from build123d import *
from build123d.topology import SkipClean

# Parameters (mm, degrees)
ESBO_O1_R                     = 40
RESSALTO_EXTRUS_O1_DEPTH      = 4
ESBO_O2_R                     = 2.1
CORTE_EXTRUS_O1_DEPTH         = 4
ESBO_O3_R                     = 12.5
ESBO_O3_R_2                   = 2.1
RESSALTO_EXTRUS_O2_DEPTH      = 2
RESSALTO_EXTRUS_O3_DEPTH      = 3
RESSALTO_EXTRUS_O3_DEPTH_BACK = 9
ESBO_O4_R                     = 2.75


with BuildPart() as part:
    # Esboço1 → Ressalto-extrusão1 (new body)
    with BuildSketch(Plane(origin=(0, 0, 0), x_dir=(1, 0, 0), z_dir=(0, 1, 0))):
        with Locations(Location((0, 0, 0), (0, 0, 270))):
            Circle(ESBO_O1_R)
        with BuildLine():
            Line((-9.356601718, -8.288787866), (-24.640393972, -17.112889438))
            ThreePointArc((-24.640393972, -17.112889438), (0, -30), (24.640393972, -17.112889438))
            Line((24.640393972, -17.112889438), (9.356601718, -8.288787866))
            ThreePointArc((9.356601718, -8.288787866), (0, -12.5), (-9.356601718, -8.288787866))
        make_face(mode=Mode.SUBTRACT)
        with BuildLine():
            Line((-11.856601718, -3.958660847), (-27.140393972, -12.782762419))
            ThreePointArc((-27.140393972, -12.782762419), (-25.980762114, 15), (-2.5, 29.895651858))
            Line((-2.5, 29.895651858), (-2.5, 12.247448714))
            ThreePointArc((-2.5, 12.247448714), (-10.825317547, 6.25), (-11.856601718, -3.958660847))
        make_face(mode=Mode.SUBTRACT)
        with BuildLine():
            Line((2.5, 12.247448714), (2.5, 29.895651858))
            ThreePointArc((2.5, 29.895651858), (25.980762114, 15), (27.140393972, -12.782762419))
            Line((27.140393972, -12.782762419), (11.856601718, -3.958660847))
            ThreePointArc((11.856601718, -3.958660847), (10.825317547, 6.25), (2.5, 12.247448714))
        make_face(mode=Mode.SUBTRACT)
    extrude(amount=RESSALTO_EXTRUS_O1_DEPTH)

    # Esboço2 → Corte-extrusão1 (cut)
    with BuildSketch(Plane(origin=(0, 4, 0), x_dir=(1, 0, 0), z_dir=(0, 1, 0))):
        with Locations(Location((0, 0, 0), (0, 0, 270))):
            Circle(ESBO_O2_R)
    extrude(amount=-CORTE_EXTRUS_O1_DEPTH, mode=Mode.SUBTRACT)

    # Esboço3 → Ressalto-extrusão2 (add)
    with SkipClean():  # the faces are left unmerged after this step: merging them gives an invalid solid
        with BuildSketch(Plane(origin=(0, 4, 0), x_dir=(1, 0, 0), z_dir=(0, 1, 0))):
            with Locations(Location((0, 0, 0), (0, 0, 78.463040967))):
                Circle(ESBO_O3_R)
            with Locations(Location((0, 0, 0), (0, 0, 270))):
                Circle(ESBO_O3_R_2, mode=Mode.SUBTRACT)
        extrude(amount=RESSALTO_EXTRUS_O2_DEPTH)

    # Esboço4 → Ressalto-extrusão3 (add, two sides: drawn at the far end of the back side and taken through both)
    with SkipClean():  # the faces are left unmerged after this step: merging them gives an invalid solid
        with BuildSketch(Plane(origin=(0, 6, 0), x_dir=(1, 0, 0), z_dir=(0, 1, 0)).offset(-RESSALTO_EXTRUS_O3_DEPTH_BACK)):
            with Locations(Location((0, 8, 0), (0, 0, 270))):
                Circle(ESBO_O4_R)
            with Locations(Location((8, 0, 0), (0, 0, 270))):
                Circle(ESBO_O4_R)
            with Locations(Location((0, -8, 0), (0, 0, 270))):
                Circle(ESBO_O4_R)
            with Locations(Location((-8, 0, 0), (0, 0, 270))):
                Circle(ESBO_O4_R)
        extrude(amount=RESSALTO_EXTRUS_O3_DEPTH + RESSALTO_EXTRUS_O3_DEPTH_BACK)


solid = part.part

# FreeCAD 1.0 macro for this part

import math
import FreeCAD as App
import Part
import Sketcher

V = App.Vector
Q = App.Units.Quantity

doc = App.newDocument("Part")
params = doc.addObject("Spreadsheet::Sheet", "Params")
for row, (alias, value) in enumerate([
    ("sketch1_diameter", "80 mm"),
    ("sketch1_radius", "30 mm"),
    ("sketch1_radius2", "12.5 mm"),
    ("pad1_length", "4 mm"),
    ("sketch2_diameter", "4.2 mm"),
    ("pocket1_length", "4 mm"),
    ("sketch3_diameter", "25 mm"),
    ("sketch3_diameter2", "4.2 mm"),
    ("pad2_length", "2 mm"),
    ("sketch4_diameter", "5.5 mm"),
    ("pad3_length", "3 mm"),
    ("pad3_length2", "9 mm"),
], start=1):
    params.set(f"A{row}", alias)
    params.set(f"B{row}", "=" + value)
    params.setAlias(f"B{row}", alias)

body = doc.addObject("PartDesign::Body", "Body")

# Sketch on XZ plane
sketch1 = body.newObject("Sketcher::SketchObject", "Sketch")
sketch1.AttachmentSupport = (doc.getObject("XZ_Plane"), [""])
sketch1.MapMode = "FlatFace"
sketch1.addGeometry([
    Part.Circle(V(0, 0, 0), V(0, 0, 1), 40),  # 0
    Part.ArcOfCircle(Part.Circle(V(0, 0, 0), V(0, 0, 1), 13), math.radians(162), math.radians(258)),  # 1
    Part.LineSegment(V(-12, 4, 0), V(-27, 13, 0)),  # 2
    Part.ArcOfCircle(Part.Circle(V(0, 0, 0), V(0, 0, 1), 30), math.radians(155), math.radians(265)),  # 3
    Part.LineSegment(V(-2, -30, 0), V(-2, -12, 0)),  # 4
    Part.ArcOfCircle(Part.Circle(V(0, 0, 0), V(0, 0, 1), 13), math.radians(-78), math.radians(18)),  # 5
    Part.LineSegment(V(2, -12, 0), V(2, -30, 0)),  # 6
    Part.ArcOfCircle(Part.Circle(V(0, 0, 0), V(0, 0, 1), 30), math.radians(-85), math.radians(25)),  # 7
    Part.LineSegment(V(27, 13, 0), V(12, 4, 0)),  # 8
    Part.LineSegment(V(-25, 17, 0), V(-9, 8, 0)),  # 9
    Part.ArcOfCircle(Part.Circle(V(0, 0, 0), V(0, 0, 1), 12), math.radians(42), math.radians(138)),  # 10
    Part.LineSegment(V(9, 8, 0), V(25, 17, 0)),  # 11
    Part.ArcOfCircle(Part.Circle(V(0, 0, 0), V(0, 0, 1), 30), math.radians(35), math.radians(145)),  # 12
], False)
sketch1.addConstraint([
    Sketcher.Constraint("Coincident", 1, 1, 2, 1),
    Sketcher.Constraint("Coincident", 2, 2, 3, 1),
    Sketcher.Constraint("Coincident", 3, 2, 4, 1),
    Sketcher.Constraint("Coincident", 4, 2, 1, 2),
    Sketcher.Constraint("Coincident", 5, 1, 6, 1),
    Sketcher.Constraint("Coincident", 6, 2, 7, 1),
    Sketcher.Constraint("Coincident", 7, 2, 8, 1),
    Sketcher.Constraint("Coincident", 8, 2, 5, 2),
    Sketcher.Constraint("Coincident", 9, 2, 10, 2),
    Sketcher.Constraint("Coincident", 10, 1, 11, 1),
    Sketcher.Constraint("Coincident", 11, 2, 12, 1),
    Sketcher.Constraint("Coincident", 12, 2, 9, 1),
    Sketcher.Constraint("Vertical", 4),
    Sketcher.Constraint("Vertical", 6),
    Sketcher.Constraint("Coincident", 0, 3, -1, 1),
    Sketcher.Constraint("Coincident", 1, 3, -1, 1),
    Sketcher.Constraint("Coincident", 3, 3, -1, 1),
    Sketcher.Constraint("Coincident", 5, 3, -1, 1),
    Sketcher.Constraint("Coincident", 7, 3, -1, 1),
    Sketcher.Constraint("Coincident", 10, 3, -1, 1),
    Sketcher.Constraint("Coincident", 12, 3, -1, 1),
    Sketcher.Constraint("Equal", 1, 5),
    Sketcher.Constraint("Equal", 3, 7),
    Sketcher.Constraint("Equal", 5, 10),
    Sketcher.Constraint("Equal", 7, 12),
    Sketcher.Constraint("Parallel", 2, 9),
    Sketcher.Constraint("Parallel", 8, 11),
    Sketcher.Constraint("Horizontal", 4, 2, 5, 1),
    Sketcher.Constraint("Horizontal", 2, 2, 7, 2),
    Sketcher.Constraint("Horizontal", 1, 1, 8, 2),
    Sketcher.Constraint("Horizontal", 9, 2, 10, 1),
    Sketcher.Constraint("Equal", 8, 9),
    Sketcher.Constraint("Diameter", 0, Q("80 mm")),
    Sketcher.Constraint("Radius", 3, Q("30 mm")),
    Sketcher.Constraint("Radius", 1, Q("12.5 mm")),
    Sketcher.Constraint("Angle", 2, Q("150 deg")),
    Sketcher.Constraint("DistanceX", 4, 2, 5, 1, Q("5 mm")),
    Sketcher.Constraint("DistanceX", 1, 1, 9, 2, Q("2.5 mm")),
])
sketch1.setExpression("Constraints[32]", "Params.sketch1_diameter")
sketch1.setExpression("Constraints[33]", "Params.sketch1_radius")
sketch1.setExpression("Constraints[34]", "Params.sketch1_radius2")
pad1 = body.newObject("PartDesign::Pad", "Pad")
pad1.Profile = sketch1
pad1.setExpression("Length", "Params.pad1_length")
pad1.Reversed = True

# Sketch on XZ plane
sketch2 = body.newObject("Sketcher::SketchObject", "Sketch001")
sketch2.AttachmentSupport = (doc.getObject("XZ_Plane"), [""])
sketch2.MapMode = "FlatFace"
sketch2.AttachmentOffset = App.Placement(V(0, 0, -4), App.Rotation())
sketch2.addGeometry(Part.Circle(V(0, 0, 0), V(0, 0, 1), 2.1), False)
sketch2.addConstraint([
    Sketcher.Constraint("Coincident", 0, 3, -1, 1),
    Sketcher.Constraint("Diameter", 0, Q("4.2 mm")),
])
sketch2.setExpression("Constraints[1]", "Params.sketch2_diameter")
pocket1 = body.newObject("PartDesign::Pocket", "Pocket")
pocket1.Profile = sketch2
pocket1.setExpression("Length", "Params.pocket1_length")
pocket1.Reversed = True

# Sketch on XZ plane
sketch3 = body.newObject("Sketcher::SketchObject", "Sketch002")
sketch3.AttachmentSupport = (doc.getObject("XZ_Plane"), [""])
sketch3.MapMode = "FlatFace"
sketch3.AttachmentOffset = App.Placement(V(0, 0, -4), App.Rotation())
sketch3.addGeometry([
    Part.Circle(V(0, 0, 0), V(0, 0, 1), 12.5),
    Part.Circle(V(0, 0, 0), V(0, 0, 1), 2.1),
], False)
sketch3.addConstraint([
    Sketcher.Constraint("Coincident", 0, 3, -1, 1),
    Sketcher.Constraint("Coincident", 1, 3, -1, 1),
    Sketcher.Constraint("Diameter", 0, Q("25 mm")),
    Sketcher.Constraint("Diameter", 1, Q("4.2 mm")),
])
sketch3.setExpression("Constraints[2]", "Params.sketch3_diameter")
sketch3.setExpression("Constraints[3]", "Params.sketch3_diameter2")
pad2 = body.newObject("PartDesign::Pad", "Pad001")
pad2.Profile = sketch3
pad2.setExpression("Length", "Params.pad2_length")
pad2.Reversed = True

# Sketch on XZ plane
sketch4 = body.newObject("Sketcher::SketchObject", "Sketch003")
sketch4.AttachmentSupport = (doc.getObject("XZ_Plane"), [""])
sketch4.MapMode = "FlatFace"
sketch4.AttachmentOffset = App.Placement(V(0, 0, -6), App.Rotation())
sketch4.addGeometry([
    Part.Circle(V(0, -8, 0), V(0, 0, 1), 2.8),
    Part.Circle(V(8, 0, 0), V(0, 0, 1), 2.8),
    Part.Circle(V(0, 8, 0), V(0, 0, 1), 2.8),
    Part.Circle(V(-8, 0, 0), V(0, 0, 1), 2.8),
], False)
sketch4.addConstraint([
    Sketcher.Constraint("Equal", 0, 1),
    Sketcher.Constraint("Equal", 1, 2),
    Sketcher.Constraint("Equal", 2, 3),
    Sketcher.Constraint("Symmetric", 0, 3, 2, 3, -1, 1),
    Sketcher.Constraint("Symmetric", 1, 3, 3, 3, -1, 1),
    Sketcher.Constraint("PointOnObject", 0, 3, -2),
    Sketcher.Constraint("PointOnObject", 1, 3, -1),
    Sketcher.Constraint("Diameter", 0, Q("5.5 mm")),
    Sketcher.Constraint("DistanceY", 0, 3, -1, 1, Q("8 mm")),
    Sketcher.Constraint("DistanceX", -1, 1, 1, 3, Q("8 mm")),
])
sketch4.setExpression("Constraints[7]", "Params.sketch4_diameter")
pad3 = body.newObject("PartDesign::Pad", "Pad002")
pad3.Profile = sketch4
pad3.Type = "TwoLengths"
pad3.setExpression("Length", "Params.pad3_length")
pad3.setExpression("Length2", "Params.pad3_length2")
pad3.Reversed = True

doc.recompute()
